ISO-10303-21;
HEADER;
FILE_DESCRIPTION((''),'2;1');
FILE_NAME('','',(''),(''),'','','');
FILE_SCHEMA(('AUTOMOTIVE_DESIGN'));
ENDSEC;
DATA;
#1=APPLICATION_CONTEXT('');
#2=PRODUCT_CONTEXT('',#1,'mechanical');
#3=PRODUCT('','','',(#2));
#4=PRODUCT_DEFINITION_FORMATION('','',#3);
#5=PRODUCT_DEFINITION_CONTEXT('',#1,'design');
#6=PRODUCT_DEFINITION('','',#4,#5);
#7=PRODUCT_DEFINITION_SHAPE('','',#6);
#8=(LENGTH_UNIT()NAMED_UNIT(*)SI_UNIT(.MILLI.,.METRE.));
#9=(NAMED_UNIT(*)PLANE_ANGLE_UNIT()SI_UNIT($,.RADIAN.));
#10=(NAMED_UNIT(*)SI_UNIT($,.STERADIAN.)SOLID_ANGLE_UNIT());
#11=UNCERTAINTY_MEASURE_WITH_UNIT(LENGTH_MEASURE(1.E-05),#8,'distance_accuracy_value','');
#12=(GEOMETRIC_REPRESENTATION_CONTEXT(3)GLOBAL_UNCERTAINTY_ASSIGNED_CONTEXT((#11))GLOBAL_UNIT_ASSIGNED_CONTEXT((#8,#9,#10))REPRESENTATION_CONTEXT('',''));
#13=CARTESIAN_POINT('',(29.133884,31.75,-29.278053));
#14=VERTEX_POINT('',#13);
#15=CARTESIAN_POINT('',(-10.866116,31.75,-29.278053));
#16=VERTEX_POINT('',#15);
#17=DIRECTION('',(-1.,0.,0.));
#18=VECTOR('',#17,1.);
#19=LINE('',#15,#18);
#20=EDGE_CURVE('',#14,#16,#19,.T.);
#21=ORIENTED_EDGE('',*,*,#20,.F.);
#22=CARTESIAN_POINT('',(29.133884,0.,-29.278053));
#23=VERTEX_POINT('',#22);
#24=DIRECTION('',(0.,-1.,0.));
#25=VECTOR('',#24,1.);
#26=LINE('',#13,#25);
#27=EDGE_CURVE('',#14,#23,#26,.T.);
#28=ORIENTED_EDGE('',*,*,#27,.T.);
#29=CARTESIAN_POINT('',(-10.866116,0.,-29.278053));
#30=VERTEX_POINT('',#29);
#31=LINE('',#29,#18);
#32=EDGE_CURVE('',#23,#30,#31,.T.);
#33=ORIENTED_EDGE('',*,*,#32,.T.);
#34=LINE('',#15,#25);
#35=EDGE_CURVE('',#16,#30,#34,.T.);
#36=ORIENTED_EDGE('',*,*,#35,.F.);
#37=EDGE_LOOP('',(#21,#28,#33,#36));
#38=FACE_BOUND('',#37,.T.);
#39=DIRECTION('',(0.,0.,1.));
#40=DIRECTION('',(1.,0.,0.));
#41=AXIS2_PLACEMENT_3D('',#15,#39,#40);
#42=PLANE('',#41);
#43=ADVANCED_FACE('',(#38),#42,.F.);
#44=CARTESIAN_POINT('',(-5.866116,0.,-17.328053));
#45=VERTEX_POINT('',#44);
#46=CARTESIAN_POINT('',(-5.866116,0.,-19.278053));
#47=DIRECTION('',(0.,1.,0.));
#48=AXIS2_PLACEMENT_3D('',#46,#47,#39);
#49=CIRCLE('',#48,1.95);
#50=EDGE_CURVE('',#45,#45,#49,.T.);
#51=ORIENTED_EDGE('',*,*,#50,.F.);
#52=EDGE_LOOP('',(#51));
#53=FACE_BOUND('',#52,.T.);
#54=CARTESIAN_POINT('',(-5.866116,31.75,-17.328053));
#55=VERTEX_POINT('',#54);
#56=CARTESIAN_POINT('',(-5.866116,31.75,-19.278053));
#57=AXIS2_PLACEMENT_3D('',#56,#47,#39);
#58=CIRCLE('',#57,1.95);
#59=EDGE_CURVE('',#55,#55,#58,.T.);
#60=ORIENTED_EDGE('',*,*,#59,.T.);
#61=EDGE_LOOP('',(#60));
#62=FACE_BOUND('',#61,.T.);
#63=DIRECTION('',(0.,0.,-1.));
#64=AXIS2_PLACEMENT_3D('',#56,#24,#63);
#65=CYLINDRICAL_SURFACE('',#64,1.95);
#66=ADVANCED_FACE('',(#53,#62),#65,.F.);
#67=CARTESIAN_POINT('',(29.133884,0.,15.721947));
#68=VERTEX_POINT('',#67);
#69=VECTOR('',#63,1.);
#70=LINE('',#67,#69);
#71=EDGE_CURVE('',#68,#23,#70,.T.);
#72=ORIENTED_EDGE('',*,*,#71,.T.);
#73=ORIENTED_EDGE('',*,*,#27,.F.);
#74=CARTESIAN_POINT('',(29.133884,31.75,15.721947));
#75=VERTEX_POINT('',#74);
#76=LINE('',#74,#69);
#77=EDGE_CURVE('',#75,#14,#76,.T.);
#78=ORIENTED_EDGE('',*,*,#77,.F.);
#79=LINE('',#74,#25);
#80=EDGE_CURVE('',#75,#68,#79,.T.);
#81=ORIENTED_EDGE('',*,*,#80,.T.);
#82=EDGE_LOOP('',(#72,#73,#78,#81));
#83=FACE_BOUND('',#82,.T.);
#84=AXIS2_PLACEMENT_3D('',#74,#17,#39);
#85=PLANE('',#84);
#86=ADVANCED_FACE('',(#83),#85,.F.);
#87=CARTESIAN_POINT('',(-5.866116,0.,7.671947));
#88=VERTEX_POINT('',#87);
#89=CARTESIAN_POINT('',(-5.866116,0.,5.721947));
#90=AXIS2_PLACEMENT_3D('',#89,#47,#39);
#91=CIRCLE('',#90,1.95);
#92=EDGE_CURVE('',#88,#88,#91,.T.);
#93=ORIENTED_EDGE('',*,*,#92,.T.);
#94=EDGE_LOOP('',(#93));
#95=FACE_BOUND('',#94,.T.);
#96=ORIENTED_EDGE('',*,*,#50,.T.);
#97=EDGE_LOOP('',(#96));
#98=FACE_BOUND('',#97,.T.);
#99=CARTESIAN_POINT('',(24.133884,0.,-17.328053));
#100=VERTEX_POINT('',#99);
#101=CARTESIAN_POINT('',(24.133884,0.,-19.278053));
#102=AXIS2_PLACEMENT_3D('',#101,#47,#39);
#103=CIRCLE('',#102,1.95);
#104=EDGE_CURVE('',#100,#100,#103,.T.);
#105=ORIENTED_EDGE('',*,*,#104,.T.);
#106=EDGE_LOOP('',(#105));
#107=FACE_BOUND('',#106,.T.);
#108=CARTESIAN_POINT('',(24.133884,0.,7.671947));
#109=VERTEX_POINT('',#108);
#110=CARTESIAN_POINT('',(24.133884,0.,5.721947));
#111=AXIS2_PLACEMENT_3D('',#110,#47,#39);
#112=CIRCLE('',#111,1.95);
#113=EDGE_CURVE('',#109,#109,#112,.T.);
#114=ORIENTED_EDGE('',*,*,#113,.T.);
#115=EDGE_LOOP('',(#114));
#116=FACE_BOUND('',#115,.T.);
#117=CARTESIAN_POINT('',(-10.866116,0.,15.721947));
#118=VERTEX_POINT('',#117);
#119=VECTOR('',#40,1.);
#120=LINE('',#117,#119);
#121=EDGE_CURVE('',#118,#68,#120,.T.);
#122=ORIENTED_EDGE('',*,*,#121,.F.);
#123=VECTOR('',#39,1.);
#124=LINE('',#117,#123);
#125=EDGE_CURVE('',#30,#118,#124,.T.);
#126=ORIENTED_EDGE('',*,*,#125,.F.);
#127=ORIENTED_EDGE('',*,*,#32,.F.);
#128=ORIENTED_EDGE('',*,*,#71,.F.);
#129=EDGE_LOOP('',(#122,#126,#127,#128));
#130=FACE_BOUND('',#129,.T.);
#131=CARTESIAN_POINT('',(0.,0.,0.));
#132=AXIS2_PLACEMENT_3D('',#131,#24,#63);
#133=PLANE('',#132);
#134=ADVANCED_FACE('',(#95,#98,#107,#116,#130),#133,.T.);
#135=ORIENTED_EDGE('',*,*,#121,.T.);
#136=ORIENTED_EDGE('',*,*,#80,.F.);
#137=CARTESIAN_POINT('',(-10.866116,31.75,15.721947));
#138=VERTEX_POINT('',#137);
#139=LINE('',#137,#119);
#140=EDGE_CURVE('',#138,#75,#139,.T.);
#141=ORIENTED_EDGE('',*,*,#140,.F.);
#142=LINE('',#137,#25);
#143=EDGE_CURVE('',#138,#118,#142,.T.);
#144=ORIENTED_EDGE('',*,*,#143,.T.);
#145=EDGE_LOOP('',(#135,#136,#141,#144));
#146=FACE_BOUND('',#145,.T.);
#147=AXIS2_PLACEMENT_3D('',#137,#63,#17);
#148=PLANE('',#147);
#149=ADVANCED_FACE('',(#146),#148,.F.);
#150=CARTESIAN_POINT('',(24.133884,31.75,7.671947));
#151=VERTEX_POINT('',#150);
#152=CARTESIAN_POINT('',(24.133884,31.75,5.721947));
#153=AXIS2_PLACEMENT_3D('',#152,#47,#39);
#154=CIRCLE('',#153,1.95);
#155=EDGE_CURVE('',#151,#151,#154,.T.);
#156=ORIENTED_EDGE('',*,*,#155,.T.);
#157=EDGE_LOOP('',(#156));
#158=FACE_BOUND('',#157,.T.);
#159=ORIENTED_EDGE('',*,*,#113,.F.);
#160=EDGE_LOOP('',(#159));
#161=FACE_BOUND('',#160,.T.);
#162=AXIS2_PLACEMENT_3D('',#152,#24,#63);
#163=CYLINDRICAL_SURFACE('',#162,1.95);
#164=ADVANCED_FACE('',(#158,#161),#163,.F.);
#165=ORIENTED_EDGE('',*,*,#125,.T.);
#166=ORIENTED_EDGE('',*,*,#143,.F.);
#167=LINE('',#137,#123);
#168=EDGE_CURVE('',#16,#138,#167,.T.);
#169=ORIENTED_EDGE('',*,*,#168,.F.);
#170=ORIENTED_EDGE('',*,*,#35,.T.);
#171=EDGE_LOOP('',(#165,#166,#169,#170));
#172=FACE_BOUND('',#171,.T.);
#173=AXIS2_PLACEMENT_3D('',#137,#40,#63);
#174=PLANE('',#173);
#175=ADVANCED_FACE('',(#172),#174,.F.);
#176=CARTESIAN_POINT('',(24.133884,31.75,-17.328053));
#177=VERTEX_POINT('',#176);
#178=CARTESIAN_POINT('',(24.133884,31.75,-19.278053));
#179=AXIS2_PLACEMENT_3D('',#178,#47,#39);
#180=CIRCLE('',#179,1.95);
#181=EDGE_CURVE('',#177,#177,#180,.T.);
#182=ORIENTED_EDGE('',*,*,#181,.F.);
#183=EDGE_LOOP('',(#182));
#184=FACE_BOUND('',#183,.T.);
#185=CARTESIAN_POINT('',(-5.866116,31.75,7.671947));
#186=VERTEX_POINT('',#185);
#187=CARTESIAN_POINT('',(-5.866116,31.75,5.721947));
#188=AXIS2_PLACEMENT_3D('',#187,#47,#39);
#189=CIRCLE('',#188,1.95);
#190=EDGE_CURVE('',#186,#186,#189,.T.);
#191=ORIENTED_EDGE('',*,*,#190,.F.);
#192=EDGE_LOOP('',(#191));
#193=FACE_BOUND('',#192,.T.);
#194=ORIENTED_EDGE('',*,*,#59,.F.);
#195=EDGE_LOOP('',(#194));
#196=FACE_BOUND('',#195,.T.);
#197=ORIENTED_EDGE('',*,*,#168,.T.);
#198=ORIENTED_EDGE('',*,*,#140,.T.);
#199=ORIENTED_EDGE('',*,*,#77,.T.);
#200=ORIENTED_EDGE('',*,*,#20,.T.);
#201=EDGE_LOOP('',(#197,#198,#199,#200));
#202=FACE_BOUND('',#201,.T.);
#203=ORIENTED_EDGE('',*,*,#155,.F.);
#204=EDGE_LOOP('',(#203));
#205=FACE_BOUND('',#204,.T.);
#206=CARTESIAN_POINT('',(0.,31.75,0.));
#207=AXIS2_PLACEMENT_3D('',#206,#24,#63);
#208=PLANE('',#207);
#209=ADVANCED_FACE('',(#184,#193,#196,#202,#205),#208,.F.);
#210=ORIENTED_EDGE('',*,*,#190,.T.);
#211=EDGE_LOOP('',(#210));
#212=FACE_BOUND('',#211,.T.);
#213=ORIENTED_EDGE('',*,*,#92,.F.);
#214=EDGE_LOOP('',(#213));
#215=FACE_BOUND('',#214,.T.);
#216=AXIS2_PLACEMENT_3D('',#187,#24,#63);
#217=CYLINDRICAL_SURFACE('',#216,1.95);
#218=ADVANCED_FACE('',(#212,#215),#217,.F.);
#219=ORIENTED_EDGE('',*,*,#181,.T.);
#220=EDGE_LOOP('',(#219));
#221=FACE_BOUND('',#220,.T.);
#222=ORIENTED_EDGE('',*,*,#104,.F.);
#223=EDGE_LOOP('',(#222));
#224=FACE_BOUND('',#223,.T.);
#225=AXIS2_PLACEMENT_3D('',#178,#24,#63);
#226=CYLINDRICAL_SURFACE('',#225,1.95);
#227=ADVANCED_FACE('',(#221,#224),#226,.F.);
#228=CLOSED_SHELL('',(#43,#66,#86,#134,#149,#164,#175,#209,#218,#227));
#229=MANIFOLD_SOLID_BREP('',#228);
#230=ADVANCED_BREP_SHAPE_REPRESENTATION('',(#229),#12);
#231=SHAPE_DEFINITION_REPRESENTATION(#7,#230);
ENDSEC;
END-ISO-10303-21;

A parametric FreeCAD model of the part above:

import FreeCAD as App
import Part
import Sketcher
from FreeCAD import Vector
Q = App.Units.Quantity


def add_polygon(sketch, points):
    """Adds a closed chain of lines whose ends are joined by coincident constraints."""
    first, n = sketch.GeometryCount, len(points)
    for a, b in zip(points, points[1:] + points[:1]):
        sketch.addGeometry(Part.LineSegment(App.Vector(*a, 0), App.Vector(*b, 0)), False)
    for i in range(n):
        sketch.addConstraint(Sketcher.Constraint("Coincident", first + i, 2, first + (i + 1) % n, 1))

doc = App.newDocument("Part")
body = doc.addObject("PartDesign::Body", "Body")

sketch1 = doc.addObject("Sketcher::SketchObject", "Sketch")
body.addObject(sketch1)
sketch1.AttachmentSupport = (doc.XZ_Plane, [""])
sketch1.MapMode = "FlatFace"
add_polygon(sketch1, [(-10.9, -29.3), (-10.9, 15.7), (29.1, 15.7), (29.1, -29.3)])
sketch1.addGeometry(Part.Circle(Vector(-5.9, 5.7, 0), Vector(0, 0, 1), 1.9), False)
sketch1.addGeometry(Part.Circle(Vector(24.1, 5.7, 0), Vector(0, 0, 1), 1.9), False)
sketch1.addGeometry(Part.Circle(Vector(-5.9, -19.3, 0), Vector(0, 0, 1), 1.9), False)
sketch1.addGeometry(Part.Circle(Vector(24.1, -19.3, 0), Vector(0, 0, 1), 1.9), False)
sketch1.addConstraint([
    Sketcher.Constraint("Vertical", 0),
    Sketcher.Constraint("Horizontal", 1),
    Sketcher.Constraint("Vertical", 2),
    Sketcher.Constraint("Horizontal", 3),
    Sketcher.Constraint("Equal", 4, 5),
    Sketcher.Constraint("Equal", 5, 6),
    Sketcher.Constraint("Equal", 6, 7),
    Sketcher.Constraint("Horizontal", 4, 3, 5, 3),
    Sketcher.Constraint("Horizontal", 6, 3, 7, 3),
    Sketcher.Constraint("Vertical", 4, 3, 6, 3),
    Sketcher.Constraint("Vertical", 5, 3, 7, 3),
    Sketcher.Constraint("Diameter", 4, Q("3.9 mm")),
    Sketcher.Constraint("DistanceX", 1, 1, 1, 2, Q("40 mm")),
    Sketcher.Constraint("DistanceY", 0, 1, 0, 2, Q("45 mm")),
    Sketcher.Constraint("DistanceX", 4, 3, 5, 3, Q("30 mm")),
    Sketcher.Constraint("DistanceY", 6, 3, 4, 3, Q("25 mm")),
    Sketcher.Constraint("DistanceX", 0, 2, 4, 3, Q("5 mm")),
    Sketcher.Constraint("DistanceY", 4, 3, 0, 2, Q("10 mm")),
    Sketcher.Constraint("DistanceX", 4, 3, -1, 1, Q("5.866116 mm")),
    Sketcher.Constraint("DistanceY", -1, 1, 4, 3, Q("5.721947 mm")),
])
pad1 = doc.addObject("PartDesign::Pad", "Pad")
body.addObject(pad1)
pad1.Profile = sketch1
pad1.Length = 31.75
pad1.Reversed = True

doc.recompute()
